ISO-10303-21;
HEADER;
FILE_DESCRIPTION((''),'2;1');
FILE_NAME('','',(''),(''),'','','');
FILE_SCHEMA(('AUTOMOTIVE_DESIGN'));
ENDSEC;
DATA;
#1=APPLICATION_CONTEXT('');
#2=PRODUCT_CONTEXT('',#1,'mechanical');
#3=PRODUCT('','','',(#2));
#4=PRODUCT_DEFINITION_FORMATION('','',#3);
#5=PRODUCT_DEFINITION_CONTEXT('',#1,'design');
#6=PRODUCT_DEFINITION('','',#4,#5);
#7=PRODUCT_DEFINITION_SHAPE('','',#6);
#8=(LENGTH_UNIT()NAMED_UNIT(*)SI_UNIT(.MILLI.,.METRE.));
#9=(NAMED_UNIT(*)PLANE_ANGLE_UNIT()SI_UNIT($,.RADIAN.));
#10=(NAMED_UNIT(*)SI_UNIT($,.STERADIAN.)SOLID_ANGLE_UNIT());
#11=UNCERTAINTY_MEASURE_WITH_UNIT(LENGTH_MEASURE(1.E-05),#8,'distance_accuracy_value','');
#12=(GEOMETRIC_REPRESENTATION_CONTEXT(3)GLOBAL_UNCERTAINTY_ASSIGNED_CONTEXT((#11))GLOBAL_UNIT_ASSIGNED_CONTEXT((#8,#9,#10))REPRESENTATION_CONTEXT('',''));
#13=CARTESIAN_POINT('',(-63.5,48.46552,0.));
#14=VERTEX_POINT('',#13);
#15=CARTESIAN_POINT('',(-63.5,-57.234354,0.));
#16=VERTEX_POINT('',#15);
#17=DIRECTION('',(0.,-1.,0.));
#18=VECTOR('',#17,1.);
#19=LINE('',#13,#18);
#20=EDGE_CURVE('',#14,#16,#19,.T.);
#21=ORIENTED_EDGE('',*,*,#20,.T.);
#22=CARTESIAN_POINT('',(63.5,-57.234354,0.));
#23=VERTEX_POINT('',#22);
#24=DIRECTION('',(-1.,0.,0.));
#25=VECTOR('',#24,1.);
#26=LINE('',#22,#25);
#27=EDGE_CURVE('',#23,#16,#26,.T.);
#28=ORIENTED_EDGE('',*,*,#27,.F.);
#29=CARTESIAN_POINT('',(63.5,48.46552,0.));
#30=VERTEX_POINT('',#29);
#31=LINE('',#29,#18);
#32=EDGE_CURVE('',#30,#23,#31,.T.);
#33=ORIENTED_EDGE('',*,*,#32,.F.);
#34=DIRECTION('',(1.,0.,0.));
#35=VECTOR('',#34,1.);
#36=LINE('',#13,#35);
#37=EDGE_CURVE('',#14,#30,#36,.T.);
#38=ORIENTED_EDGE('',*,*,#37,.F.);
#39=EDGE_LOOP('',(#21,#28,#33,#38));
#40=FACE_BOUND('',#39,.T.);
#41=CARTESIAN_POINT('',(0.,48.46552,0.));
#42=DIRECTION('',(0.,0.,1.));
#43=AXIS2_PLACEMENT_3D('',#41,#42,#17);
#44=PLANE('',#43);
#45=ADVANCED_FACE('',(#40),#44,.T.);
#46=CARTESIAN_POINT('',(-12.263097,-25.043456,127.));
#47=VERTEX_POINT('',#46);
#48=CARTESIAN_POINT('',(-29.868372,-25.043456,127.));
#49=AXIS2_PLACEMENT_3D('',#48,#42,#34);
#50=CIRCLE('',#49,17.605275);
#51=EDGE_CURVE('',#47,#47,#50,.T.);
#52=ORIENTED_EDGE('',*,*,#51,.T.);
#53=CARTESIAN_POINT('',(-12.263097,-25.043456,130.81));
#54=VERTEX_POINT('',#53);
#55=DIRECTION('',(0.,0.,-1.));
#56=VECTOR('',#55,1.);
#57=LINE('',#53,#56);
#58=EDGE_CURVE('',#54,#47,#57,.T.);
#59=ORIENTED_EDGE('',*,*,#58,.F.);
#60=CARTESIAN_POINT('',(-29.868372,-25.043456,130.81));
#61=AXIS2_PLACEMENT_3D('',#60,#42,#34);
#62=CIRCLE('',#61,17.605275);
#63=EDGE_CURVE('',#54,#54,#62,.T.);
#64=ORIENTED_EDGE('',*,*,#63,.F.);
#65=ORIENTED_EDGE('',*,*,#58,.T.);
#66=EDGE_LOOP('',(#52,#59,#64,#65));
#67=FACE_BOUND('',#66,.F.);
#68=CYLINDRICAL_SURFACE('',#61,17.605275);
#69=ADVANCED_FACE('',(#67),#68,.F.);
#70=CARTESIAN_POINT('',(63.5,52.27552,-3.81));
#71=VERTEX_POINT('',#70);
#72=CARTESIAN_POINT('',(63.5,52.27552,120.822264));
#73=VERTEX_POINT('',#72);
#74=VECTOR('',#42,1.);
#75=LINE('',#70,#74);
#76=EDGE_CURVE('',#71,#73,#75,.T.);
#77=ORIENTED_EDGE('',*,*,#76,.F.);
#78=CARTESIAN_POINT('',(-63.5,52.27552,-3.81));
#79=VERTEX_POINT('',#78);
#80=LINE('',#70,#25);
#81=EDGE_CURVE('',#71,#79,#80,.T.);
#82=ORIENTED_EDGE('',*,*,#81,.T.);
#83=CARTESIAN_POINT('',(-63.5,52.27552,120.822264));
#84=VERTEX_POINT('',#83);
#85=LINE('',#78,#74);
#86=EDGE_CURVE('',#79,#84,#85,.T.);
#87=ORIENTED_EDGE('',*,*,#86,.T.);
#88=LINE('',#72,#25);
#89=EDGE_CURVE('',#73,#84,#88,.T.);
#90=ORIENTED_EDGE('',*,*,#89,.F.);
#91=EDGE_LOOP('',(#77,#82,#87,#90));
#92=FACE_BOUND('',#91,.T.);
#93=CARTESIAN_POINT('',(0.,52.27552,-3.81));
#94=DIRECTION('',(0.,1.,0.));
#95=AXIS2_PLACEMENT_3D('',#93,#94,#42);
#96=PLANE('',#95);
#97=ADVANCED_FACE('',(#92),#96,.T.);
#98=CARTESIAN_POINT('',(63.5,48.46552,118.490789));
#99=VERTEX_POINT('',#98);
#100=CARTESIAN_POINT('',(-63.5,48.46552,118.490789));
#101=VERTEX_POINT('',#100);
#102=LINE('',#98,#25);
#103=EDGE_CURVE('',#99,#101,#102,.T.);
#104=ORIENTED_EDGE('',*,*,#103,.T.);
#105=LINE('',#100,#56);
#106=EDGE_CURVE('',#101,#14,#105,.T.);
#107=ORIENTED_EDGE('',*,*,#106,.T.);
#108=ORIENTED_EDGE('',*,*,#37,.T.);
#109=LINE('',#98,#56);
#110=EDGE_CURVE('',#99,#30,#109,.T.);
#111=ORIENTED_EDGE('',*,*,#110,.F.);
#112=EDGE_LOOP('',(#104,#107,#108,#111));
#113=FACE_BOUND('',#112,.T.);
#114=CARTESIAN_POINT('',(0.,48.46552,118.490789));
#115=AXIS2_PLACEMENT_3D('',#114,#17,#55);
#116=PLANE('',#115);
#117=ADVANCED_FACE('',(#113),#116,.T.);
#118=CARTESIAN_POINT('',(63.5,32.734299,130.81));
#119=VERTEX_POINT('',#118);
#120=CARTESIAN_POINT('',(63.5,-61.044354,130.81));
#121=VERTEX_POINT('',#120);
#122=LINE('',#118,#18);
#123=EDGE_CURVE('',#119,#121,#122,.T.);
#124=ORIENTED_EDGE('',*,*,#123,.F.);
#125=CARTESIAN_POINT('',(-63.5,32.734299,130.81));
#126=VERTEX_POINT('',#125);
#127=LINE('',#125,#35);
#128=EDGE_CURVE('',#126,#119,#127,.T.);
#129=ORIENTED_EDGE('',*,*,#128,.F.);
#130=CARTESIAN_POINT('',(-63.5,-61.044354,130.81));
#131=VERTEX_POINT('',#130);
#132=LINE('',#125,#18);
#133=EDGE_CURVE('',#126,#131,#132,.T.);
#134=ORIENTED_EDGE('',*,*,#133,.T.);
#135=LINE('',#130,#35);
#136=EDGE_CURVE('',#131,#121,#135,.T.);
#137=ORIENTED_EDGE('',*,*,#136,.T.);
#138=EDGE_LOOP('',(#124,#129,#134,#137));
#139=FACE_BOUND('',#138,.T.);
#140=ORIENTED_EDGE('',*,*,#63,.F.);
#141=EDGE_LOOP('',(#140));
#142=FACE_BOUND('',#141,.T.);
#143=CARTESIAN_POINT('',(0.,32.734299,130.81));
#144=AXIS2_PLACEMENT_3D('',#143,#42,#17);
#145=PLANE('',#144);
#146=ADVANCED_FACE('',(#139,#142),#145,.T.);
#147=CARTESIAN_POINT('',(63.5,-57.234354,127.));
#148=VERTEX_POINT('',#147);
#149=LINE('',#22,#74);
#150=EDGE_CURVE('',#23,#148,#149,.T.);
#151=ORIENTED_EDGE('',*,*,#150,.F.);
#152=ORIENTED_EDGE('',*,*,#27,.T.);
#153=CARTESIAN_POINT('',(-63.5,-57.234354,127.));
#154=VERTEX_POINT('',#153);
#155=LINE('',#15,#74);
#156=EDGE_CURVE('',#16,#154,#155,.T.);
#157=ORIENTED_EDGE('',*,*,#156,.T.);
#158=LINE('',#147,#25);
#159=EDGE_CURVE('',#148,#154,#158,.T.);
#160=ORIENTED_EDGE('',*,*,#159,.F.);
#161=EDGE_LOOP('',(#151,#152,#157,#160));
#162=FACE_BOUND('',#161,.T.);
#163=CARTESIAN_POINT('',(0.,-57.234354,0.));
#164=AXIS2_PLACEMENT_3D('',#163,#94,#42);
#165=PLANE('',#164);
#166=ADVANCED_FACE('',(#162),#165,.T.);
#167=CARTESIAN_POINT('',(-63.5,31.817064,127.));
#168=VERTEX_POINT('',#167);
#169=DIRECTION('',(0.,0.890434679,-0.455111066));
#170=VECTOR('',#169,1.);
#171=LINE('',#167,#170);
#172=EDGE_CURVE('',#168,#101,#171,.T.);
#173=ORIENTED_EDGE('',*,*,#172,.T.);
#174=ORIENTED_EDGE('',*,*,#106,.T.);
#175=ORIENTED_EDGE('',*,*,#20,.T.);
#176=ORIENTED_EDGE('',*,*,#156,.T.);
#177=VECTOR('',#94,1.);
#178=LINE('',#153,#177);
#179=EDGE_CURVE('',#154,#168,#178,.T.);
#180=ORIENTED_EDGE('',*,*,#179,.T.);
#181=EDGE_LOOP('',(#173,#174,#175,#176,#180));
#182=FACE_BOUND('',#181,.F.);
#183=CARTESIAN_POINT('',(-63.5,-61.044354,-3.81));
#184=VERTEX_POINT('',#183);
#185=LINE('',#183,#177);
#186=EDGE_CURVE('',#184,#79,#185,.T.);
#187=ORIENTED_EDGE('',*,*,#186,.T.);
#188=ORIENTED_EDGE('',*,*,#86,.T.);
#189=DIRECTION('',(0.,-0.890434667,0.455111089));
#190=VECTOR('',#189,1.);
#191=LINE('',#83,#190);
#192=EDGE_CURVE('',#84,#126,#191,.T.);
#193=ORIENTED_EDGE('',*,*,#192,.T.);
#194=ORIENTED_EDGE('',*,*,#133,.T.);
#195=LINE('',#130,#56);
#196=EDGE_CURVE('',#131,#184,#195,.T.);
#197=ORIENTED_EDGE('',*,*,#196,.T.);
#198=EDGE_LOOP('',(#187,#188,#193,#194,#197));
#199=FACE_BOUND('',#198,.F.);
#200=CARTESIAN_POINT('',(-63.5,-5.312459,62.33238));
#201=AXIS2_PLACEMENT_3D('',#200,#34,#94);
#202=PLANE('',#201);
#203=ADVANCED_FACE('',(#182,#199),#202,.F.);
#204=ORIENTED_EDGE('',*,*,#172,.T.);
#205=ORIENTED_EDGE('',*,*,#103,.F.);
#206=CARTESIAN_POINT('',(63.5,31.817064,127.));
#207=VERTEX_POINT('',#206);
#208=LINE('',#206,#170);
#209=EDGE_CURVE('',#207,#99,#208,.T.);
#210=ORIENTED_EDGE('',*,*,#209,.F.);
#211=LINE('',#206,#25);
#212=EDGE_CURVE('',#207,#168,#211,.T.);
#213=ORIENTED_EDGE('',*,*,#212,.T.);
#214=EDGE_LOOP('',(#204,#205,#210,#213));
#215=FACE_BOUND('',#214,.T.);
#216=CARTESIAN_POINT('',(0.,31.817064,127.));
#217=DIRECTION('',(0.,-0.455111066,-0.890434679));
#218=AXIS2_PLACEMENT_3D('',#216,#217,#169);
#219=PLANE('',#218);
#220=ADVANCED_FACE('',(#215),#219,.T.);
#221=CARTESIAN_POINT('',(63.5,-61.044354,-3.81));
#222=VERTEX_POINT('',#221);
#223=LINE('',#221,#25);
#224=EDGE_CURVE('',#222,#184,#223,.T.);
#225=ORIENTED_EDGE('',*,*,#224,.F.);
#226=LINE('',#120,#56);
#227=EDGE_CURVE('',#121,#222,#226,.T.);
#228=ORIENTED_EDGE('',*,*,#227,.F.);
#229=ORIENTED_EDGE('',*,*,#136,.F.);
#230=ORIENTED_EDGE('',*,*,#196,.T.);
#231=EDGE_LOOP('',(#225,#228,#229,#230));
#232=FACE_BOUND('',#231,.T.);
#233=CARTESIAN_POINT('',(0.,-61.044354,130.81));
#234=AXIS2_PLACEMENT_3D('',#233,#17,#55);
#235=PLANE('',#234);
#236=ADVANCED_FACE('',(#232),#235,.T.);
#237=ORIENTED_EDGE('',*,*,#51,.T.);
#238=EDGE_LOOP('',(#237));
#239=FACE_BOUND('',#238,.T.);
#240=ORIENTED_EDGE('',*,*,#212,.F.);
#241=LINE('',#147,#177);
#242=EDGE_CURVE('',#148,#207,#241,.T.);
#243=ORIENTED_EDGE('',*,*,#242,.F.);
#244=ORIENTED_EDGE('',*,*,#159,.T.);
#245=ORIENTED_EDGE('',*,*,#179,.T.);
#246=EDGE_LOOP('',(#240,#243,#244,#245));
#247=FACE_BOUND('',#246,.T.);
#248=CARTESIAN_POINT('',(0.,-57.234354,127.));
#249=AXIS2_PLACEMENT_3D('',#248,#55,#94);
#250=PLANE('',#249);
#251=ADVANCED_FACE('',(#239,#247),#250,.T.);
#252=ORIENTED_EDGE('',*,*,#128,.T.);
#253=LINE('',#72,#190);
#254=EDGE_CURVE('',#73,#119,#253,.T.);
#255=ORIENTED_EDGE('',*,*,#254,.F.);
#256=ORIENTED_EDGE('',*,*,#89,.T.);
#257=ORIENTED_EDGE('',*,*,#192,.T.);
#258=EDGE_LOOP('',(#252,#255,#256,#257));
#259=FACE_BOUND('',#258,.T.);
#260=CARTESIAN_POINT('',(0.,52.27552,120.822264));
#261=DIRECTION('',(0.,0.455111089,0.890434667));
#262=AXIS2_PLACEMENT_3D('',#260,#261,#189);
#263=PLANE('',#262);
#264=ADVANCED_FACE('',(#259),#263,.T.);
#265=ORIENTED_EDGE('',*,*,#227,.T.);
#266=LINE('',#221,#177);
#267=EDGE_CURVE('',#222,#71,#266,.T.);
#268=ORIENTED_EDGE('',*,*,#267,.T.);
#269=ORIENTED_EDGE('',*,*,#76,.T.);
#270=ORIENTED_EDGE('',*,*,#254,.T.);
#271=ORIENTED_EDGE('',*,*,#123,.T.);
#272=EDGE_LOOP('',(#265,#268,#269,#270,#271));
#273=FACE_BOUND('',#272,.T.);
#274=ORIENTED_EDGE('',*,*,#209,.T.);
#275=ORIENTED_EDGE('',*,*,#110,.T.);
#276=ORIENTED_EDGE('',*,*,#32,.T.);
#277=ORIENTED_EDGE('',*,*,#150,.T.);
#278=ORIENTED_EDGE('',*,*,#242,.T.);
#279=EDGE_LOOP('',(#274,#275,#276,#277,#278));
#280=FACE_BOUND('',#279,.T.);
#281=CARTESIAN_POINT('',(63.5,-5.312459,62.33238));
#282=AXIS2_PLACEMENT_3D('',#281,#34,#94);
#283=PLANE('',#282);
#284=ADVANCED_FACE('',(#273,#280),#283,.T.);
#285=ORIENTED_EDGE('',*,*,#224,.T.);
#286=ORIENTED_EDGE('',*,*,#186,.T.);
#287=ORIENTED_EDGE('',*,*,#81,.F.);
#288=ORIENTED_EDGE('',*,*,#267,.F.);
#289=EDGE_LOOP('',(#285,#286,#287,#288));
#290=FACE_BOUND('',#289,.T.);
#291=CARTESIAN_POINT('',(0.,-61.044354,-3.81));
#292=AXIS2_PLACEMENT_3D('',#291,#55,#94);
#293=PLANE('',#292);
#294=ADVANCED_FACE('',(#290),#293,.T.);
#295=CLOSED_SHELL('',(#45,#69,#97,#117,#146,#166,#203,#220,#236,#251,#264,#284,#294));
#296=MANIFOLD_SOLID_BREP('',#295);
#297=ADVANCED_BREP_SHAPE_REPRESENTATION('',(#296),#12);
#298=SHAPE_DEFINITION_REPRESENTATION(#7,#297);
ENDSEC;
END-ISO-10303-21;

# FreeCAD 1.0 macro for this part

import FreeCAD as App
import Part
import Sketcher

V = App.Vector
Q = App.Units.Quantity


def add_polygon(sketch, points):
    """Adds a closed chain of lines whose ends are joined by coincident constraints."""
    first, n = sketch.GeometryCount, len(points)
    for a, b in zip(points, points[1:] + points[:1]):
        sketch.addGeometry(Part.LineSegment(App.Vector(*a, 0), App.Vector(*b, 0)), False)
    for i in range(n):
        sketch.addConstraint(Sketcher.Constraint("Coincident", first + i, 2, first + (i + 1) % n, 1))

doc = App.newDocument("Part")
body = doc.addObject("PartDesign::Body", "Body")

sketch1 = doc.addObject("Sketcher::SketchObject", "Sketch")
body.addObject(sketch1)
sketch1.AttachmentSupport = (doc.YZ_Plane, [""])
sketch1.MapMode = "FlatFace"
add_polygon(sketch1, [(52, 121), (33, 131), (-61, 131), (-61, -4), (52, -4)])
add_polygon(sketch1, [(48, 118), (48, 0), (-57, 0), (-57, 127), (32, 127)])
sketch1.addConstraint(Sketcher.Constraint("Horizontal", 1))
sketch1.addConstraint(Sketcher.Constraint("Vertical", 2))
sketch1.addConstraint(Sketcher.Constraint("Horizontal", 3))
sketch1.addConstraint(Sketcher.Constraint("Vertical", 4))
sketch1.addConstraint(Sketcher.Constraint("Vertical", 5))
sketch1.addConstraint(Sketcher.Constraint("Horizontal", 6))
sketch1.addConstraint(Sketcher.Constraint("Vertical", 7))
sketch1.addConstraint(Sketcher.Constraint("Horizontal", 8))
sketch1.addConstraint(Sketcher.Constraint("PointOnObject", 5, 2, -1))
sketch1.addConstraint(Sketcher.Constraint("Parallel", 0, 9))
sketch1.addConstraint(Sketcher.Constraint("DistanceY", 7, 1, 7, 2, Q("5 in")))
sketch1.addConstraint(Sketcher.Constraint("DistanceY", 2, 2, 2, 1, Q("5.3 in")))
sketch1.addConstraint(Sketcher.Constraint("DistanceY", -1, 1, 0, 2, Q("5.15 in")))
sketch1.addConstraint(Sketcher.Constraint("DistanceX", 5, 2, 3, 2, Q("0.15 in")))
sketch1.addConstraint(Sketcher.Constraint("DistanceX", 2, 2, 6, 2, Q("0.15 in")))
sketch1.addConstraint(Sketcher.Constraint("Distance", 9, 18.696999))
sketch1.addConstraint(Sketcher.Constraint("DistanceX", 8, 1, 8, 2, 89.051418))
sketch1.addConstraint(Sketcher.Constraint("DistanceY", 5, 2, 5, 1, 118.490789))
sketch1.addConstraint(Sketcher.Constraint("DistanceX", -1, 1, 0, 2, 32.734299))
sketch1.addConstraint(Sketcher.Constraint("Distance", 0, 21.94571))
pad1 = doc.addObject("PartDesign::Pad", "Pad")
body.addObject(pad1)
pad1.Profile = sketch1
pad1.Length = Q("5 in")
pad1.Midplane = True

sketch2 = doc.addObject("Sketcher::SketchObject", "Sketch001")
body.addObject(sketch2)
sketch2.AttachmentSupport = (doc.XY_Plane, [""])
sketch2.MapMode = "FlatFace"
sketch2.AttachmentOffset = App.Placement(V(0, 0, 5.15 * 25.4), App.Rotation())
sketch2.addGeometry(Part.Circle(V(-30, -25, 0), V(0, 0, 1), 18), False)
sketch2.addConstraint(Sketcher.Constraint("Diameter", 0, 35.21055))
sketch2.addConstraint(Sketcher.Constraint("DistanceX", 0, 3, -1, 1, 29.868372))
sketch2.addConstraint(Sketcher.Constraint("DistanceY", 0, 3, -1, 1, 25.043456))
pocket1 = doc.addObject("PartDesign::Pocket", "Pocket")
body.addObject(pocket1)
pocket1.Profile = sketch2
pocket1.Length = Q("0.15 in")

doc.recompute()
